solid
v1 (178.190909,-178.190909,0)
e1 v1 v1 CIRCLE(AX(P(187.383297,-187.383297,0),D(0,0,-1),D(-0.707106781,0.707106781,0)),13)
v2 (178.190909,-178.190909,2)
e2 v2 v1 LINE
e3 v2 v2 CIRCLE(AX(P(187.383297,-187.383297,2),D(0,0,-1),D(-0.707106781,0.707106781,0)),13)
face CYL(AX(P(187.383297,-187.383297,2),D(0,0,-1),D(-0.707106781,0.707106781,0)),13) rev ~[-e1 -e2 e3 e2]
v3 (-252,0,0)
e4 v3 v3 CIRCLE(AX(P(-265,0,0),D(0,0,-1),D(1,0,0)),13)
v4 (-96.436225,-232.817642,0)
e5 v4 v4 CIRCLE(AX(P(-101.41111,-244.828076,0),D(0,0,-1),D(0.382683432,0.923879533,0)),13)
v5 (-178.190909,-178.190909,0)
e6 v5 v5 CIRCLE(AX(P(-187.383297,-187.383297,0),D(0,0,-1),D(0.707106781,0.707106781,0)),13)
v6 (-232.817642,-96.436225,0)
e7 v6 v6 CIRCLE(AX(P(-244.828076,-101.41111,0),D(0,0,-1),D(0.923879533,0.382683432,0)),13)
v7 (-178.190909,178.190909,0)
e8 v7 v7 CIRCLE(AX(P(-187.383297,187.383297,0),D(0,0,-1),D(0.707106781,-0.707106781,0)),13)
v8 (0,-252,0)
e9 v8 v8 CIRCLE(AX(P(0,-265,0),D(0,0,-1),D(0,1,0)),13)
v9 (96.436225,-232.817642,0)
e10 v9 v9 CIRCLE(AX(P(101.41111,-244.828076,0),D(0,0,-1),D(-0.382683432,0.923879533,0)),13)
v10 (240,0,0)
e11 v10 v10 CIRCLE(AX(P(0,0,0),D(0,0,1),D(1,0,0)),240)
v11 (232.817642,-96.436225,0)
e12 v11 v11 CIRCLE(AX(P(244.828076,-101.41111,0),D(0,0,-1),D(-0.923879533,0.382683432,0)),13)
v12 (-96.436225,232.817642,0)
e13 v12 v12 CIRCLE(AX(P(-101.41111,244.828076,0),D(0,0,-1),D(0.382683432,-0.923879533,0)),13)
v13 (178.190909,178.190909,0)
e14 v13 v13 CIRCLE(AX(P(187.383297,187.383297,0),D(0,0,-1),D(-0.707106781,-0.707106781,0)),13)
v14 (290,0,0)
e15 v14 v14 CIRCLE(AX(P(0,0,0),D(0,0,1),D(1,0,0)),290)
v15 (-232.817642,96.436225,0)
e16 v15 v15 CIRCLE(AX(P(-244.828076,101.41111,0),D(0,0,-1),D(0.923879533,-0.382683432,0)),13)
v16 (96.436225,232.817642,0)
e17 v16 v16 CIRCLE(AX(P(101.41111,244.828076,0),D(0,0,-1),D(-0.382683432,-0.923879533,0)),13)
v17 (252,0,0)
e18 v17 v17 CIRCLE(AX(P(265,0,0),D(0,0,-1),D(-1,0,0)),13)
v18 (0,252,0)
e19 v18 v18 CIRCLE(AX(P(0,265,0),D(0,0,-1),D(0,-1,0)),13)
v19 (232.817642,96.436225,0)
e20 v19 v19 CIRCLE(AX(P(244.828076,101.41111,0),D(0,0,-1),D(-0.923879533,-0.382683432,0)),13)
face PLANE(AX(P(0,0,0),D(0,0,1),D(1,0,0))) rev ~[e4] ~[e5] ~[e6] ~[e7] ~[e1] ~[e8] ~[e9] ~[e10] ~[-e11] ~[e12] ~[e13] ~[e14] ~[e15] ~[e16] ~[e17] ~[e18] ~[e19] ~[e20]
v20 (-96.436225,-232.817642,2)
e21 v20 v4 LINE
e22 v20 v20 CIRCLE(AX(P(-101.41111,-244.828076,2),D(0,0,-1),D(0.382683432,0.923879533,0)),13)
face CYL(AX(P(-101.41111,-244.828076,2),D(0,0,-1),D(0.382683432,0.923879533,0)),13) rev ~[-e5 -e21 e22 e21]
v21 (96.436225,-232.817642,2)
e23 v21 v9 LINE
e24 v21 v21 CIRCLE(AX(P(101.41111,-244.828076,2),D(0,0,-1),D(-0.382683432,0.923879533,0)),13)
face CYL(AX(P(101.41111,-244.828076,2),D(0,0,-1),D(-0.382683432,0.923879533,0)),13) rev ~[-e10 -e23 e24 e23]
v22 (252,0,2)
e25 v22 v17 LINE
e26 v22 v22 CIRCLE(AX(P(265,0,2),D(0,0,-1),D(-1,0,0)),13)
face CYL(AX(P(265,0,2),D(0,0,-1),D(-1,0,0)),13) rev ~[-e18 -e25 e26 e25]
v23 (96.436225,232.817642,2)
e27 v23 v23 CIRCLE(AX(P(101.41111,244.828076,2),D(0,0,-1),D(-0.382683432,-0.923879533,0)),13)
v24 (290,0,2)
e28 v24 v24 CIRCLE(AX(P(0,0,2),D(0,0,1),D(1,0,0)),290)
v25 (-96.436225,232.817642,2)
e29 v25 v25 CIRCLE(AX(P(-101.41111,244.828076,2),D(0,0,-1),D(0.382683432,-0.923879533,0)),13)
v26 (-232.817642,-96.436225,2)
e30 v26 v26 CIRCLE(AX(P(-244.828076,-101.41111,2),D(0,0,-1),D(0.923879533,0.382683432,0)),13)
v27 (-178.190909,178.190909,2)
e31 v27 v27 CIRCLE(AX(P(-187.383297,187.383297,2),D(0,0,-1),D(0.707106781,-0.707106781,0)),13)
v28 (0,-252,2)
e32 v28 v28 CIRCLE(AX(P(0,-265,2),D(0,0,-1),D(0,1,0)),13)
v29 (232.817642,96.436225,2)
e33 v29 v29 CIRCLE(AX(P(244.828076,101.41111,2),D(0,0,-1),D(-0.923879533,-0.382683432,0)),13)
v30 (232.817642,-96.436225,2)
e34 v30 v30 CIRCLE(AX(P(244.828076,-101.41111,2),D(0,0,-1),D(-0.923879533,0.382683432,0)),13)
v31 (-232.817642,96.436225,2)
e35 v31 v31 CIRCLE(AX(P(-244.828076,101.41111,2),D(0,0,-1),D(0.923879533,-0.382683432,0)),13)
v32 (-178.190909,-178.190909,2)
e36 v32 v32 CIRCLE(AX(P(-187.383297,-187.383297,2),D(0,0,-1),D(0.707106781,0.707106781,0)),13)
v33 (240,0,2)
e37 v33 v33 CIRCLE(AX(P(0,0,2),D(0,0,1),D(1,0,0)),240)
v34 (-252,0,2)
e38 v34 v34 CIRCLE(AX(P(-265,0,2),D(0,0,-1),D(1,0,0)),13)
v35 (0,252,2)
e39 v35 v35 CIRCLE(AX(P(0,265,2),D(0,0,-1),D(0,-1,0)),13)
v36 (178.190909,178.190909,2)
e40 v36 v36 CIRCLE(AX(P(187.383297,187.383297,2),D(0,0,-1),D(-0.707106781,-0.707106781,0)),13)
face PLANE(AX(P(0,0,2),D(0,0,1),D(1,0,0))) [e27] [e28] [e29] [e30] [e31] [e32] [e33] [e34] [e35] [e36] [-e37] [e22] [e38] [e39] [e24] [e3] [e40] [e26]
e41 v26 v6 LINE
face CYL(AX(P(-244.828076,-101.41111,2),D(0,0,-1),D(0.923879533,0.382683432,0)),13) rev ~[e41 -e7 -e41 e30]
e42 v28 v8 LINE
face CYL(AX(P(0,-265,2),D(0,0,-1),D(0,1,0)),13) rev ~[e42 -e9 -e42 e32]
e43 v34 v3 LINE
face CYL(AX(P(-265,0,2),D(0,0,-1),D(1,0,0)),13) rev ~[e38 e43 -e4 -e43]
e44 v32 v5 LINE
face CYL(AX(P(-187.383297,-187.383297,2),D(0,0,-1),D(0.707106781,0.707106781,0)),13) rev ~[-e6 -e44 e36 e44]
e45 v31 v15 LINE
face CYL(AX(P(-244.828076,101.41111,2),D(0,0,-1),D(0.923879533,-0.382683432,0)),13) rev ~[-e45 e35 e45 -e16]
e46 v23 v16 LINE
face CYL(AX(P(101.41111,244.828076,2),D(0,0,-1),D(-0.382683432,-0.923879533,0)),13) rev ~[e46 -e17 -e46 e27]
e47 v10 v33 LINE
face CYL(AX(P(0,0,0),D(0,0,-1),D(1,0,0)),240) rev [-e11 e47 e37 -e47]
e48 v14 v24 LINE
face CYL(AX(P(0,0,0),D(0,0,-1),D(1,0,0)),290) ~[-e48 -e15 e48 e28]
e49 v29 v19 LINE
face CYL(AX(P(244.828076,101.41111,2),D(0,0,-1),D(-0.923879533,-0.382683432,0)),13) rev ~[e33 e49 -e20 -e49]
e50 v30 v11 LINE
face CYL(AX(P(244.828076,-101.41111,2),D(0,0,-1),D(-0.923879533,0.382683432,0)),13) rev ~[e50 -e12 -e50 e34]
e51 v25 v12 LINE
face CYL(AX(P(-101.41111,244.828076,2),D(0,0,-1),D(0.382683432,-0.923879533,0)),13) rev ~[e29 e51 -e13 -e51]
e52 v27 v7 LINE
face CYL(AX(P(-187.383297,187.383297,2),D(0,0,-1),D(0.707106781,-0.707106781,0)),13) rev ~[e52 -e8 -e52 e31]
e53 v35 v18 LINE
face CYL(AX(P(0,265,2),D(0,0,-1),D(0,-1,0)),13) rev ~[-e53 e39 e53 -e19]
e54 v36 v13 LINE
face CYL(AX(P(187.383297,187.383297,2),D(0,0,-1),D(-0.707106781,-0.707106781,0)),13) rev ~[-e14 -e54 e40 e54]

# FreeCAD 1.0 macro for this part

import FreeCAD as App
import Part
import Sketcher

V = App.Vector

doc = App.newDocument("Part")
params = doc.addObject("Spreadsheet::Sheet", "Params")
for row, (alias, value) in enumerate([
    ("sketch1_diameter", "580 mm"),
    ("sketch1_diameter2", "480 mm"),
    ("pad1_length", "2 mm"),
    ("sketch2_diameter", "26 mm"),
    ("hole_diameter", "26 mm"),
], start=1):
    params.set(f"A{row}", alias)
    params.set(f"B{row}", "=" + value)
    params.setAlias(f"B{row}", alias)

body = doc.addObject("PartDesign::Body", "Body")

# Sketch on XY plane
sketch1 = doc.addObject("Sketcher::SketchObject", "Sketch")
body.addObject(sketch1)
sketch1.AttachmentSupport = (doc.XY_Plane, [""])
sketch1.MapMode = "FlatFace"
sketch1.addGeometry([
    Part.Circle(V(0, 0, 0), V(0, 0, 1), 290),
    Part.Circle(V(0, 0, 0), V(0, 0, 1), 240),
], False)
sketch1.addConstraint([
    Sketcher.Constraint("Coincident", 0, 3, -1, 1),
    Sketcher.Constraint("Coincident", 1, 3, -1, 1),
    Sketcher.Constraint("Diameter", 0, 580.0),
    Sketcher.Constraint("Diameter", 1, 480.0),
])
sketch1.setExpression("Constraints[2]", "Params.sketch1_diameter")
sketch1.setExpression("Constraints[3]", "Params.sketch1_diameter2")
pad1 = doc.addObject("PartDesign::Pad", "Pad")
body.addObject(pad1)
pad1.Profile = sketch1
pad1.setExpression("Length", "Params.pad1_length")

# Sketch on XY plane
sketch2 = doc.addObject("Sketcher::SketchObject", "Sketch001")
body.addObject(sketch2)
sketch2.AttachmentSupport = (doc.XY_Plane, [""])
sketch2.MapMode = "FlatFace"
sketch2.AttachmentOffset = App.Placement(V(0, 0, 2), App.Rotation())
sketch2.addGeometry(Part.Circle(V(0, 265, 0), V(0, 0, 1), 13), False)
sketch2.addConstraint([
    Sketcher.Constraint("PointOnObject", 0, 3, -2),
    Sketcher.Constraint("Diameter", 0, 26.0),
    Sketcher.Constraint("DistanceY", -1, 1, 0, 3, 265.0),
])
sketch2.setExpression("Constraints[1]", "Params.sketch2_diameter")
doc.recompute()
hole = doc.addObject("PartDesign::Hole", "Hole")
body.addObject(hole)
hole.Profile = sketch2
hole.ThreadType = "None"
hole.setExpression("Diameter", "Params.hole_diameter")
hole.DepthType = "ThroughAll"
doc.recompute()

polarpattern = doc.addObject("PartDesign::PolarPattern", "PolarPattern")
body.addObject(polarpattern)
polarpattern.Originals = [hole]
polarpattern.Axis = (doc.Z_Axis, [""])
polarpattern.Angle = 360
polarpattern.Occurrences = 16
body.Tip = polarpattern

doc.recompute()
